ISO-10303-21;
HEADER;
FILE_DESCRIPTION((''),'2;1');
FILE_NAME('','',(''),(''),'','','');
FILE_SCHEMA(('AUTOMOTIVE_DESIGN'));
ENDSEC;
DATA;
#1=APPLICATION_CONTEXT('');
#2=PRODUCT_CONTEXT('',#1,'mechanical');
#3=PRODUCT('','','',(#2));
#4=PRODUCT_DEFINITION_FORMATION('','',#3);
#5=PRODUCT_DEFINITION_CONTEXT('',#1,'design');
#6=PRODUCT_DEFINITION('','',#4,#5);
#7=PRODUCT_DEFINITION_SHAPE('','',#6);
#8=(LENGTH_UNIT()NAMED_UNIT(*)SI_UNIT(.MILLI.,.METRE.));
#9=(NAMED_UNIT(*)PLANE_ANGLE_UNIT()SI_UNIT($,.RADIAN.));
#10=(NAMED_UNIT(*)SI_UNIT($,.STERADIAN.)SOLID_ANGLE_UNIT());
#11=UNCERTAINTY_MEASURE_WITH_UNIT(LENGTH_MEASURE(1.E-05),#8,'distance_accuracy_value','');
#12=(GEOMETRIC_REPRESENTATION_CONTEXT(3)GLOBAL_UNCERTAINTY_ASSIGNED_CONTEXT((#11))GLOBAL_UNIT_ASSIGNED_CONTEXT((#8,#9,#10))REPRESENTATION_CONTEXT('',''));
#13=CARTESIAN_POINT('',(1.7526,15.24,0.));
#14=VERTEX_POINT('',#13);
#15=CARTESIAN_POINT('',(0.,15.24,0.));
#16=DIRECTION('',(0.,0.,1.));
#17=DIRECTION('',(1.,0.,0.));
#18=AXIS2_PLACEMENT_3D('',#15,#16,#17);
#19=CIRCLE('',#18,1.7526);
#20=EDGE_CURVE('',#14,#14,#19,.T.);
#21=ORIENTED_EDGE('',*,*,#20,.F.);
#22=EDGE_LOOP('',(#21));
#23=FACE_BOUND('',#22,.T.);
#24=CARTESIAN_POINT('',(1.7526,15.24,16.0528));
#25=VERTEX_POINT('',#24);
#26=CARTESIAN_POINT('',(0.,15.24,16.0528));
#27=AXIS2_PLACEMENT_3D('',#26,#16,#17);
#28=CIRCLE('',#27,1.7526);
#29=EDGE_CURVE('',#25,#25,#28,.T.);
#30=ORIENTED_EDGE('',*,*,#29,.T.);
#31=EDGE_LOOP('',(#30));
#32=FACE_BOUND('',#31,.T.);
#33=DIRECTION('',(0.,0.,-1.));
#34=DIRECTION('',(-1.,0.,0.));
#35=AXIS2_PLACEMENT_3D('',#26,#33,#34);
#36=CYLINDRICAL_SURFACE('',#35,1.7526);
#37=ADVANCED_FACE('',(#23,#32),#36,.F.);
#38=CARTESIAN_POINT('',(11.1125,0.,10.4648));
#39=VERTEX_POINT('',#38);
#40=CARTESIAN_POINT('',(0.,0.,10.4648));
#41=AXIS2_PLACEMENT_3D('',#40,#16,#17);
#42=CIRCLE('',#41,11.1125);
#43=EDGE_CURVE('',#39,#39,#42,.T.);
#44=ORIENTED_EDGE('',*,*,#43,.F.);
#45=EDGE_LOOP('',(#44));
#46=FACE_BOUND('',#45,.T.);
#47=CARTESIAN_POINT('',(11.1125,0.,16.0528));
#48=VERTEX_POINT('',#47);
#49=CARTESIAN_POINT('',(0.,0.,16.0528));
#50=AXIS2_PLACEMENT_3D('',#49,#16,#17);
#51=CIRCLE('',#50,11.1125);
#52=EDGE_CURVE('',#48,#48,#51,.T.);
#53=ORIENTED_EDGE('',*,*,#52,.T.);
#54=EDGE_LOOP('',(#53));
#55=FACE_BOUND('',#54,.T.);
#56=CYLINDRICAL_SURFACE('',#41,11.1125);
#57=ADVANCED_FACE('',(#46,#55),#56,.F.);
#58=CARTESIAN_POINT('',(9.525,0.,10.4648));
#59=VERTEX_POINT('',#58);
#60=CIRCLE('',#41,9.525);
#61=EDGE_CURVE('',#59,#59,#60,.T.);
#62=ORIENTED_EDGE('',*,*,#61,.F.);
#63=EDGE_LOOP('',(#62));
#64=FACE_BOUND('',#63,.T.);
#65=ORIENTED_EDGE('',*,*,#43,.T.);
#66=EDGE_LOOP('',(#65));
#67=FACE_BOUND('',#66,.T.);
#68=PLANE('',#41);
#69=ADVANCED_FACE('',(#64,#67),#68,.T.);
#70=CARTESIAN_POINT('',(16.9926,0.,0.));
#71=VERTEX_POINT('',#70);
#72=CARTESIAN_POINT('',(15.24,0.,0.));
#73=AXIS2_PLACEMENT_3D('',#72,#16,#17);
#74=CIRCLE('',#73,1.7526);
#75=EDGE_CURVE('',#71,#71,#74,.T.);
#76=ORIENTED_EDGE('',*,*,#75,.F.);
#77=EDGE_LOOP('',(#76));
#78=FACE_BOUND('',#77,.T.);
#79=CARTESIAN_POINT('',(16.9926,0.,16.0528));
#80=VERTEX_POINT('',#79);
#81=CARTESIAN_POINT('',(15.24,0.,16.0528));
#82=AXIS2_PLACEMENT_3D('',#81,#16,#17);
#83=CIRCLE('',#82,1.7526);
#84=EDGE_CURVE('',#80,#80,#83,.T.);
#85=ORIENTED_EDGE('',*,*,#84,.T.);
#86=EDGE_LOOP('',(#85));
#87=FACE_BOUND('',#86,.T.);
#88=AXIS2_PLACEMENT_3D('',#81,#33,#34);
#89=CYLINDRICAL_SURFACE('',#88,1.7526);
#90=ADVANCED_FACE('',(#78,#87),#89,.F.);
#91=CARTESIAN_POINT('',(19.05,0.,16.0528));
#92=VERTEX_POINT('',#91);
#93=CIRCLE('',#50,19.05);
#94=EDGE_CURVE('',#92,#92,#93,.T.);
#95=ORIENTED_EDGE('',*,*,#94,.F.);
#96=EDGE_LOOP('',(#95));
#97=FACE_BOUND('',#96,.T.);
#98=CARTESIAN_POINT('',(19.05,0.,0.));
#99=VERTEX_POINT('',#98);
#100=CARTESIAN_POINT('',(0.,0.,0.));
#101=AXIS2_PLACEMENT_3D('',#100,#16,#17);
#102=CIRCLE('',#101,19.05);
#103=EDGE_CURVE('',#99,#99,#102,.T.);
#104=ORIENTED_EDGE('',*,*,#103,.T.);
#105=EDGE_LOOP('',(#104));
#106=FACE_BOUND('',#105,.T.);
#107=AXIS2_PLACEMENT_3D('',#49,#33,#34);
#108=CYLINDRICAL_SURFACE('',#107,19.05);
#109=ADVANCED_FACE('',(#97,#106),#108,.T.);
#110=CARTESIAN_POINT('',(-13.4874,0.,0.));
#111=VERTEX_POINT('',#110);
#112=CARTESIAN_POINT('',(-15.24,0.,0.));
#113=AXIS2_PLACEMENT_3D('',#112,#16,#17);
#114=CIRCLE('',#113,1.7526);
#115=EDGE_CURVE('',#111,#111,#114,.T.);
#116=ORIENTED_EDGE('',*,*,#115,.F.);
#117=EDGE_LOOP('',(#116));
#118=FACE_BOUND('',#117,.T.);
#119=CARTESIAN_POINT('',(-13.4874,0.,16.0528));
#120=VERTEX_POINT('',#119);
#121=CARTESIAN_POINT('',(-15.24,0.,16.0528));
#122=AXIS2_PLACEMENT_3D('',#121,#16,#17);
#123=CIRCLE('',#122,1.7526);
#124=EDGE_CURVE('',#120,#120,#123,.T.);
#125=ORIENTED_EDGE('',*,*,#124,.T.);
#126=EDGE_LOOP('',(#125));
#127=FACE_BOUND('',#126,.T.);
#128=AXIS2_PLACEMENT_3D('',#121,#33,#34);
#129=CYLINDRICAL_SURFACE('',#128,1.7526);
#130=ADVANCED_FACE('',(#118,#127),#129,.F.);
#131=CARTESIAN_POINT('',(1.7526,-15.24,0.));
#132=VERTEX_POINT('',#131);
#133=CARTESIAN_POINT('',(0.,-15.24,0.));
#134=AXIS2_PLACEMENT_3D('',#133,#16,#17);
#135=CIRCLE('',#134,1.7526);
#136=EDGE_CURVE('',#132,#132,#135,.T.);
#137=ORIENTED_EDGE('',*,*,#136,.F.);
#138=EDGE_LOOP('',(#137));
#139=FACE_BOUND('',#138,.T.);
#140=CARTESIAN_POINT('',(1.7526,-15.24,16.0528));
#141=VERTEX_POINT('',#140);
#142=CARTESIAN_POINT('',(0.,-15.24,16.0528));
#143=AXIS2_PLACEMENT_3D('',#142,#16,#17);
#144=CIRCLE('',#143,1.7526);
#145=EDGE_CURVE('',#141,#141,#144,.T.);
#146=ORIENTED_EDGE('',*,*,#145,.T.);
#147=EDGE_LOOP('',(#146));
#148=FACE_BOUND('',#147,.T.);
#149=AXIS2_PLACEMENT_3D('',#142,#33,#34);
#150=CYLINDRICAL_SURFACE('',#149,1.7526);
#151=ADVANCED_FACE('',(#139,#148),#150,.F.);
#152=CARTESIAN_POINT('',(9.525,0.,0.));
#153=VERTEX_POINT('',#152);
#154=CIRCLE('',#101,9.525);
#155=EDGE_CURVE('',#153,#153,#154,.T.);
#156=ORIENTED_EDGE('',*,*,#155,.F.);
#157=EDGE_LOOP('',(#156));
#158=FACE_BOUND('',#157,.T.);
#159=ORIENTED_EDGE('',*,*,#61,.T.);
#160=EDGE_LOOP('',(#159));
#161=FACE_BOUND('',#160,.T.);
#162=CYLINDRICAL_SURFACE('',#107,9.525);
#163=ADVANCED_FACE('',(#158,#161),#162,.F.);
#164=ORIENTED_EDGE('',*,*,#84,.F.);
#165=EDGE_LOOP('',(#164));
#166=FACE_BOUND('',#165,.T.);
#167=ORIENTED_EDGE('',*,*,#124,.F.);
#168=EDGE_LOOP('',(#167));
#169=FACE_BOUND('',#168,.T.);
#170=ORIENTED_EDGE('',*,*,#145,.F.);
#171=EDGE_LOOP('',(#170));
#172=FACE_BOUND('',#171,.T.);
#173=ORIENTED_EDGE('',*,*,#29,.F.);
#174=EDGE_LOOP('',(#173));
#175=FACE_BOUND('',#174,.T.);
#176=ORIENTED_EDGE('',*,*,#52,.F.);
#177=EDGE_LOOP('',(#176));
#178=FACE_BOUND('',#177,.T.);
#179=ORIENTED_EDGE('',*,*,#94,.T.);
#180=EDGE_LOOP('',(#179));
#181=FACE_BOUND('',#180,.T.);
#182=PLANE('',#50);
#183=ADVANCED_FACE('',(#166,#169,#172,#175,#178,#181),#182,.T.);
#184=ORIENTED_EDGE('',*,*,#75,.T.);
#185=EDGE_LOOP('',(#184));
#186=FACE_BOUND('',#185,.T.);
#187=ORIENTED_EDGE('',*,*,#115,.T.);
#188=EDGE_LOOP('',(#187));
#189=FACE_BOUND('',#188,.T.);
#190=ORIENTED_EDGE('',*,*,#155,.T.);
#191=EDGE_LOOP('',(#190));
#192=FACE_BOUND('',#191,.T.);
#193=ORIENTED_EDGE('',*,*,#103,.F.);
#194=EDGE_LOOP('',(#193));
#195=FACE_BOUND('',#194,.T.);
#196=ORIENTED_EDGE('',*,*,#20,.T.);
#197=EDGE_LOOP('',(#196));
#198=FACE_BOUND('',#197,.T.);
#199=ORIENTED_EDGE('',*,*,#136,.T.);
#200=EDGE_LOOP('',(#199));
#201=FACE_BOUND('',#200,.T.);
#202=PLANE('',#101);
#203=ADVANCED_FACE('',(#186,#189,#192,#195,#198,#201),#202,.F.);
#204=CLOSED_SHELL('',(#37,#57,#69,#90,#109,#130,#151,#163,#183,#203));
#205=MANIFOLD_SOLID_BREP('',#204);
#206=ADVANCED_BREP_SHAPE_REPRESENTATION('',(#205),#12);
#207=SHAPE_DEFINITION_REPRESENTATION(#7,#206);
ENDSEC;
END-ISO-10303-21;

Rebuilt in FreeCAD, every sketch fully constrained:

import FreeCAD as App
import Part
import Sketcher
Q = App.Units.Quantity

doc = App.newDocument("Part")
body = doc.addObject("PartDesign::Body", "Body")

# Sketch on XY plane
sketch1 = body.newObject("Sketcher::SketchObject", "Sketch")
sketch1.AttachmentSupport = (doc.getObject("XY_Plane"), [""])
sketch1.MapMode = "FlatFace"
sketch1.addGeometry([
    Part.Circle(App.Vector(0, 0, 0), App.Vector(0, 0, 1), 19.1),  # 0
    Part.Circle(App.Vector(0, -15.2, 0), App.Vector(0, 0, 1), 1.8),  # 1
    Part.Circle(App.Vector(-15.2, 0, 0), App.Vector(0, 0, 1), 1.8),  # 2
    Part.Circle(App.Vector(0, 0, 0), App.Vector(0, 0, 1), 9.5),  # 3
    Part.Circle(App.Vector(15.2, 0, 0), App.Vector(0, 0, 1), 1.8),  # 4
    Part.Circle(App.Vector(0, 15.2, 0), App.Vector(0, 0, 1), 1.8),  # 5
], False)
sketch1.addConstraint([
    Sketcher.Constraint("Coincident", 0, 3, -1, 1),
    Sketcher.Constraint("Coincident", 3, 3, -1, 1),
    Sketcher.Constraint("Equal", 1, 2),
    Sketcher.Constraint("Equal", 2, 4),
    Sketcher.Constraint("Equal", 4, 5),
    Sketcher.Constraint("Symmetric", 2, 3, 4, 3, -1, 1),
    Sketcher.Constraint("Symmetric", 1, 3, 5, 3, -1, 1),
    Sketcher.Constraint("PointOnObject", 1, 3, -2),
    Sketcher.Constraint("PointOnObject", 2, 3, -1),
    Sketcher.Constraint("Diameter", 0, Q("1.5 in")),
    Sketcher.Constraint("Diameter", 3, Q("0.75 in")),
    Sketcher.Constraint("Diameter", 1, Q("0.138 in")),
    Sketcher.Constraint("DistanceY", 1, 3, -1, 1, Q("0.6 in")),
    Sketcher.Constraint("DistanceX", 2, 3, -1, 1, Q("0.6 in")),
])
pad1 = body.newObject("PartDesign::Pad", "Pad")
pad1.Profile = sketch1
pad1.Length = Q("0.632 in")

# Sketch on XY plane
sketch2 = body.newObject("Sketcher::SketchObject", "Sketch001")
sketch2.AttachmentSupport = (doc.getObject("XY_Plane"), [""])
sketch2.MapMode = "FlatFace"
sketch2.AttachmentOffset = App.Placement(App.Vector(0, 0, 0.632 * 25.4), App.Rotation())
sketch2.addGeometry(Part.Circle(App.Vector(0, 0, 0), App.Vector(0, 0, 1), 11), False)
sketch2.addConstraint([
    Sketcher.Constraint("Coincident", 0, 3, -1, 1),
    Sketcher.Constraint("Diameter", 0, Q("0.875 in")),
])
pocket1 = body.newObject("PartDesign::Pocket", "Pocket")
pocket1.Profile = sketch2
pocket1.Length = Q("0.22 in")

doc.recompute()
